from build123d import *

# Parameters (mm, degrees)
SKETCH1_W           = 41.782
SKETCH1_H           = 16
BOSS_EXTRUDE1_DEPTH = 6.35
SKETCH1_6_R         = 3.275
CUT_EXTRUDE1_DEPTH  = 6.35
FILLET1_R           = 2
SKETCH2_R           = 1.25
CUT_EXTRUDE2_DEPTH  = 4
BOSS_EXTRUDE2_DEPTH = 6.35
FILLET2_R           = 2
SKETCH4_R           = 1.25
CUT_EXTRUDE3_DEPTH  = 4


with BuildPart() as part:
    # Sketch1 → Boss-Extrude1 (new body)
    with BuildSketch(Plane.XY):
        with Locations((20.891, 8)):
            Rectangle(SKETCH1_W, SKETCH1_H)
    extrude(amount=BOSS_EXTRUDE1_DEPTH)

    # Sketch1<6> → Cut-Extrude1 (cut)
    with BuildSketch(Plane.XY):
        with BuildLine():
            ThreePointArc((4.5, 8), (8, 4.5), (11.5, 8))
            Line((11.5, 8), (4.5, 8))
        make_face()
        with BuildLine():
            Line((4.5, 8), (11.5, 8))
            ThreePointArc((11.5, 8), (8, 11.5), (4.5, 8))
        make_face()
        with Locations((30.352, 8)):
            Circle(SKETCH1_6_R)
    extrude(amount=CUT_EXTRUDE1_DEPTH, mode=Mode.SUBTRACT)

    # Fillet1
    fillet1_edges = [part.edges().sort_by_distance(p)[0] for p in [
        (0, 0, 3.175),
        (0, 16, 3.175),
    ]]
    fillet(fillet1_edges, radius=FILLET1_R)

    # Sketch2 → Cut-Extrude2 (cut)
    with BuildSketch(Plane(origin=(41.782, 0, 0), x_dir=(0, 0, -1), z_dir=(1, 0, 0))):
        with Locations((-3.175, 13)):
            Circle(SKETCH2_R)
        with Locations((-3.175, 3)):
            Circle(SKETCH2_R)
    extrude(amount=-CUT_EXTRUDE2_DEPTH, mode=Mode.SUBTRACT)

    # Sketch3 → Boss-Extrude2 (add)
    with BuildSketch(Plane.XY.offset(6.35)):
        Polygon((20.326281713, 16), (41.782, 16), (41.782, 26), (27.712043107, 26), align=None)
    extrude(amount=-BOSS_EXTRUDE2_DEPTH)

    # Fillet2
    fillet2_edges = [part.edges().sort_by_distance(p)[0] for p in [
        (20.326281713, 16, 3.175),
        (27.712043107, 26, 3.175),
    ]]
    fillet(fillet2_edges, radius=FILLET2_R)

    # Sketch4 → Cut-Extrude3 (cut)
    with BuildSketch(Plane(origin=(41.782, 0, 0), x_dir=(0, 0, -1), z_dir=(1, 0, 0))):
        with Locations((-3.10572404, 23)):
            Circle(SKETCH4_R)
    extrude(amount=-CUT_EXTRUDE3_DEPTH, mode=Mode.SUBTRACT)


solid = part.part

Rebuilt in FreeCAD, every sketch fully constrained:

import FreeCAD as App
import Part
import Sketcher
from FreeCAD import Vector


def edges_at(feature, points):
    """Names of the edges that pass closest to the given points."""
    edges = feature.Shape.Edges
    near = lambda p: min(range(len(edges)), key=lambda i: edges[i].distToShape(Part.Vertex(*p))[0])
    return sorted({f"Edge{near(p) + 1}" for p in points})


def add_polygon(sketch, points):
    """Adds a closed chain of lines whose ends are joined by coincident constraints."""
    first, n = sketch.GeometryCount, len(points)
    for a, b in zip(points, points[1:] + points[:1]):
        sketch.addGeometry(Part.LineSegment(App.Vector(*a, 0), App.Vector(*b, 0)), False)
    for i in range(n):
        sketch.addConstraint(Sketcher.Constraint("Coincident", first + i, 2, first + (i + 1) % n, 1))

doc = App.newDocument("Part")
params = doc.addObject("Spreadsheet::Sheet", "Params")
for row, (alias, value) in enumerate([
    ("sketch1_height", "16 mm"),
    ("pad1_length", "6.35 mm"),
    ("sketch2_diameter", "7 mm"),
    ("sketch2_diameter2", "6.55 mm"),
    ("pocket1_length", "6.35 mm"),
    ("fillet_radius", "2 mm"),
    ("sketch3_diameter", "2.5 mm"),
    ("pocket2_length", "4 mm"),
    ("sketch4_height", "10 mm"),
    ("pad2_length", "6.35 mm"),
    ("fillet2_radius", "2 mm"),
    ("sketch5_diameter", "2.5 mm"),
    ("pocket3_length", "4 mm"),
], start=1):
    params.set(f"A{row}", alias)
    params.set(f"B{row}", "=" + value)
    params.setAlias(f"B{row}", alias)

body = doc.addObject("PartDesign::Body", "Body")

sketch1 = body.newObject("Sketcher::SketchObject", "Sketch")
sketch1.AttachmentSupport = (doc.getObject("XY_Plane"), [""])
sketch1.MapMode = "FlatFace"
add_polygon(sketch1, [(0, 16), (0, 0), (42, 0), (42, 16)])
sketch1.addConstraint([
    Sketcher.Constraint("Vertical", 0),
    Sketcher.Constraint("Horizontal", 1),
    Sketcher.Constraint("Vertical", 2),
    Sketcher.Constraint("Horizontal", 3),
    Sketcher.Constraint("Coincident", 0, 2, -1, 1),
    Sketcher.Constraint("DistanceY", 0, 2, 0, 1, 16.0),
    Sketcher.Constraint("DistanceX", 1, 1, 1, 2, 41.782),
])
sketch1.setExpression("Constraints[9]", "Params.sketch1_height")
pad1 = body.newObject("PartDesign::Pad", "Pad")
pad1.Profile = sketch1
pad1.setExpression("Length", "Params.pad1_length")

sketch2 = body.newObject("Sketcher::SketchObject", "Sketch001")
sketch2.AttachmentSupport = (doc.getObject("XY_Plane"), [""])
sketch2.MapMode = "FlatFace"
sketch2.addGeometry([
    Part.Circle(Vector(8, 8, 0), Vector(0, 0, 1), 3.5),
    Part.Circle(Vector(30.4, 8, 0), Vector(0, 0, 1), 3.3),
], False)
sketch2.addConstraint([
    Sketcher.Constraint("Horizontal", 0, 3, 1, 3),
    Sketcher.Constraint("Diameter", 0, 7.0),
    Sketcher.Constraint("Diameter", 1, 6.55),
    Sketcher.Constraint("DistanceX", -1, 1, 0, 3, 8.0),
    Sketcher.Constraint("DistanceY", -1, 1, 0, 3, 8.0),
    Sketcher.Constraint("DistanceX", -1, 1, 1, 3, 30.352),
])
sketch2.setExpression("Constraints[1]", "Params.sketch2_diameter")
sketch2.setExpression("Constraints[2]", "Params.sketch2_diameter2")
pocket1 = body.newObject("PartDesign::Pocket", "Pocket")
pocket1.Profile = sketch2
pocket1.setExpression("Length", "Params.pocket1_length")
pocket1.Reversed = True
doc.recompute()

fillet = body.newObject("PartDesign::Fillet", "Fillet")
fillet.Base = (pocket1, edges_at(pocket1, [(0, 0, 3.175), (0, 16, 3.175)]))
fillet.setExpression("Radius", "Params.fillet_radius")

sketch3 = body.newObject("Sketcher::SketchObject", "Sketch002")
sketch3.AttachmentSupport = (doc.getObject("YZ_Plane"), [""])
sketch3.MapMode = "FlatFace"
sketch3.AttachmentOffset = App.Placement(Vector(0, 0, 41.782), App.Rotation())
sketch3.addGeometry([
    Part.Circle(Vector(13, 3.2, 0), Vector(0, 0, 1), 1.2),
    Part.Circle(Vector(3, 3.2, 0), Vector(0, 0, 1), 1.2),
], False)
sketch3.addConstraint([
    Sketcher.Constraint("Equal", 0, 1),
    Sketcher.Constraint("Horizontal", 0, 3, 1, 3),
    Sketcher.Constraint("Diameter", 0, 2.5),
    Sketcher.Constraint("DistanceX", -1, 1, 0, 3, 13.0),
    Sketcher.Constraint("DistanceX", -1, 1, 1, 3, 3.0),
    Sketcher.Constraint("DistanceY", -1, 1, 0, 3, 3.175),
])
sketch3.setExpression("Constraints[2]", "Params.sketch3_diameter")
pocket2 = body.newObject("PartDesign::Pocket", "Pocket001")
pocket2.Profile = sketch3
pocket2.setExpression("Length", "Params.pocket2_length")

sketch4 = body.newObject("Sketcher::SketchObject", "Sketch003")
sketch4.AttachmentSupport = (doc.getObject("XY_Plane"), [""])
sketch4.MapMode = "FlatFace"
sketch4.AttachmentOffset = App.Placement(Vector(0, 0, 6.35), App.Rotation())
add_polygon(sketch4, [(20, 16), (42, 16), (42, 26), (28, 26)])
sketch4.addConstraint([
    Sketcher.Constraint("Horizontal", 0),
    Sketcher.Constraint("Vertical", 1),
    Sketcher.Constraint("Horizontal", 2),
    Sketcher.Constraint("DistanceY", 1, 1, 1, 2, 10.0),
    Sketcher.Constraint("DistanceY", -1, 1, 0, 2, 16.0),
    Sketcher.Constraint("DistanceX", -1, 1, 0, 2, 41.782),
    Sketcher.Constraint("DistanceX", 0, 1, 0, 2, 21.455718),
    Sketcher.Constraint("DistanceX", 2, 2, 2, 1, 14.069957),
])
sketch4.setExpression("Constraints[7]", "Params.sketch4_height")
pad2 = body.newObject("PartDesign::Pad", "Pad001")
pad2.Profile = sketch4
pad2.setExpression("Length", "Params.pad2_length")
pad2.Reversed = True
doc.recompute()

fillet2 = body.newObject("PartDesign::Fillet", "Fillet001")
fillet2.Base = (pad2, edges_at(pad2, [(20.326, 16, 3.175), (27.712, 26, 3.175)]))
fillet2.setExpression("Radius", "Params.fillet2_radius")

sketch5 = body.newObject("Sketcher::SketchObject", "Sketch004")
sketch5.AttachmentSupport = (doc.getObject("YZ_Plane"), [""])
sketch5.MapMode = "FlatFace"
sketch5.AttachmentOffset = App.Placement(Vector(0, 0, 41.782), App.Rotation())
sketch5.addGeometry(Part.Circle(Vector(23, 3.1, 0), Vector(0, 0, 1), 1.2), False)
sketch5.addConstraint([
    Sketcher.Constraint("Diameter", 0, 2.5),
    Sketcher.Constraint("DistanceX", -1, 1, 0, 3, 23.0),
    Sketcher.Constraint("DistanceY", -1, 1, 0, 3, 3.105724),
])
sketch5.setExpression("Constraints[0]", "Params.sketch5_diameter")
pocket3 = body.newObject("PartDesign::Pocket", "Pocket002")
pocket3.Profile = sketch5
pocket3.setExpression("Length", "Params.pocket3_length")

doc.recompute()
